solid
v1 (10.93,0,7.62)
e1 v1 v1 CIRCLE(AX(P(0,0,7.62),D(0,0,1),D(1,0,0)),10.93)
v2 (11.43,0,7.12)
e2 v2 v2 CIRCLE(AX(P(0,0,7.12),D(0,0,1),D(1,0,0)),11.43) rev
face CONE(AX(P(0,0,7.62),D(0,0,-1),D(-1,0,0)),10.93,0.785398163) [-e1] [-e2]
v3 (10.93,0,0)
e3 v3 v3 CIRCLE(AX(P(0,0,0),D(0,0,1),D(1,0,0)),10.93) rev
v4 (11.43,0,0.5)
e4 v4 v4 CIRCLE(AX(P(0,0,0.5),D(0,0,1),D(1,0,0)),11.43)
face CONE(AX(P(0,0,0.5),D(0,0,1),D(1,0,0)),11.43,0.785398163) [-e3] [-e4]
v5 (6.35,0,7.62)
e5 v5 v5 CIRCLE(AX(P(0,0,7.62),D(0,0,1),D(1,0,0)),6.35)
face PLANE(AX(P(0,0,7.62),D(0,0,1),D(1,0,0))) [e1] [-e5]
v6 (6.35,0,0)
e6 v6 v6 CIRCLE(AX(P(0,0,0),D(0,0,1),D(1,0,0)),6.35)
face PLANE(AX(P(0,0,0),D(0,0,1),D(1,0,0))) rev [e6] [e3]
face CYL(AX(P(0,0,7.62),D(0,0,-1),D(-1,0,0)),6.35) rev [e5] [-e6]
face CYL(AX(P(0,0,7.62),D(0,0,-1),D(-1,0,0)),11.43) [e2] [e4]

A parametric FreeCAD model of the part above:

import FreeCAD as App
import Part
import Sketcher

V = App.Vector
Q = App.Units.Quantity


def edges_at(feature, points):
    """Names of the edges that pass closest to the given points."""
    edges = feature.Shape.Edges
    near = lambda p: min(range(len(edges)), key=lambda i: edges[i].distToShape(Part.Vertex(*p))[0])
    return sorted({f"Edge{near(p) + 1}" for p in points})

doc = App.newDocument("Part")
body = doc.addObject("PartDesign::Body", "Body")

# Sketch on XY plane
sketch1 = body.newObject("Sketcher::SketchObject", "Sketch")
sketch1.AttachmentSupport = (doc.getObject("XY_Plane"), [""])
sketch1.MapMode = "FlatFace"
sketch1.addGeometry([
    Part.Circle(V(0, 0, 0), V(0, 0, 1), 11.43),
    Part.Circle(V(0, 0, 0), V(0, 0, 1), 6.35),
], False)
sketch1.addConstraint([
    Sketcher.Constraint("Coincident", 0, 3, -1, 1),
    Sketcher.Constraint("Coincident", 1, 3, -1, 1),
    Sketcher.Constraint("Diameter", 0, Q("0.9 in")),
    Sketcher.Constraint("Diameter", 1, Q("0.5 in")),
])
pad1 = body.newObject("PartDesign::Pad", "Pad")
pad1.Profile = sketch1
pad1.Length = Q("0.3 in")
doc.recompute()

chamfer = body.newObject("PartDesign::Chamfer", "Chamfer")
chamfer.Base = (pad1, edges_at(pad1, [(-11.43, 0, 0), (-11.43, 0, 7.62)]))
chamfer.Size = 0.5

doc.recompute()
